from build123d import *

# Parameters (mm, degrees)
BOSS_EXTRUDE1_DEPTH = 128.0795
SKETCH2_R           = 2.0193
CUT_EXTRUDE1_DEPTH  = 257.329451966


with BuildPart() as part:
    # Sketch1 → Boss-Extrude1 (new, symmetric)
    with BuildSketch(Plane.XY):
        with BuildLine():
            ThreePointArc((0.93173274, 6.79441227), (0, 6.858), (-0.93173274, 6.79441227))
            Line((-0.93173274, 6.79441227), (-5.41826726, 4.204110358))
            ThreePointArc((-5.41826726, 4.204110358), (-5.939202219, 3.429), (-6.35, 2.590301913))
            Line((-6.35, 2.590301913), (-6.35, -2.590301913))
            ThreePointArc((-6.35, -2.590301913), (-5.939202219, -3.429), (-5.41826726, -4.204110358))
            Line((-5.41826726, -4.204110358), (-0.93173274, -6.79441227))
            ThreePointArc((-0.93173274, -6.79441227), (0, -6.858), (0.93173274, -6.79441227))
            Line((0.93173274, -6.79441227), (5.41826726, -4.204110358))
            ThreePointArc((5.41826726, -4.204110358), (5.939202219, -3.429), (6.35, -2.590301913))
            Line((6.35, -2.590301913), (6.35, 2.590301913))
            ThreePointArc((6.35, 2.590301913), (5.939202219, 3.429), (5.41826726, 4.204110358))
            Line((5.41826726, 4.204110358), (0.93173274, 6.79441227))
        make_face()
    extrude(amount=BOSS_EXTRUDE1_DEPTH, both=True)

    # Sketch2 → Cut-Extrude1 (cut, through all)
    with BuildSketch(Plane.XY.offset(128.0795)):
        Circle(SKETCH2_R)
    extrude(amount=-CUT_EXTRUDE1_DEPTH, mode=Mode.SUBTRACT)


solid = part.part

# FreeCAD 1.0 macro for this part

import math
import FreeCAD as App
import Part
import Sketcher
from FreeCAD import Vector
Q = App.Units.Quantity

doc = App.newDocument("Part")
body = doc.addObject("PartDesign::Body", "Body")

# Sketch on XY plane
sketch1 = doc.addObject("Sketcher::SketchObject", "Sketch")
body.addObject(sketch1)
sketch1.AttachmentSupport = (doc.XY_Plane, [""])
sketch1.MapMode = "FlatFace"
sketch1.addGeometry([
    Part.ArcOfCircle(Part.Circle(Vector(0, 0, 0), Vector(0, 0, 1), 6.9), math.radians(82.19), math.radians(97.81)),  # 0
    Part.LineSegment(Vector(-0.9, 6.8, 0), Vector(-5.4, 4.2, 0)),  # 1
    Part.ArcOfCircle(Part.Circle(Vector(0, 0, 0), Vector(0, 0, 1), 6.9), math.radians(142.19), math.radians(157.81)),  # 2
    Part.LineSegment(Vector(-6.3, 2.6, 0), Vector(-6.3, -2.6, 0)),  # 3
    Part.ArcOfCircle(Part.Circle(Vector(0, 0, 0), Vector(0, 0, 1), 6.9), math.radians(-157.81), math.radians(-142.19)),  # 4
    Part.LineSegment(Vector(-5.4, -4.2, 0), Vector(-0.9, -6.8, 0)),  # 5
    Part.ArcOfCircle(Part.Circle(Vector(0, 0, 0), Vector(0, 0, 1), 6.9), math.radians(-97.81), math.radians(-82.19)),  # 6
    Part.LineSegment(Vector(0.9, -6.8, 0), Vector(5.4, -4.2, 0)),  # 7
    Part.ArcOfCircle(Part.Circle(Vector(0, 0, 0), Vector(0, 0, 1), 6.9), math.radians(-37.81), math.radians(-22.19)),  # 8
    Part.LineSegment(Vector(6.3, -2.6, 0), Vector(6.3, 2.6, 0)),  # 9
    Part.ArcOfCircle(Part.Circle(Vector(0, 0, 0), Vector(0, 0, 1), 6.9), math.radians(22.19), math.radians(37.81)),  # 10
    Part.LineSegment(Vector(5.4, 4.2, 0), Vector(0.9, 6.8, 0)),  # 11
], False)
sketch1.addConstraint([
    Sketcher.Constraint("Coincident", 0, 2, 1, 1),
    Sketcher.Constraint("Coincident", 1, 2, 2, 1),
    Sketcher.Constraint("Coincident", 2, 2, 3, 1),
    Sketcher.Constraint("Coincident", 3, 2, 4, 1),
    Sketcher.Constraint("Coincident", 4, 2, 5, 1),
    Sketcher.Constraint("Coincident", 5, 2, 6, 1),
    Sketcher.Constraint("Coincident", 6, 2, 7, 1),
    Sketcher.Constraint("Coincident", 7, 2, 8, 1),
    Sketcher.Constraint("Coincident", 8, 2, 9, 1),
    Sketcher.Constraint("Coincident", 9, 2, 10, 1),
    Sketcher.Constraint("Coincident", 10, 2, 11, 1),
    Sketcher.Constraint("Coincident", 11, 2, 0, 1),
    Sketcher.Constraint("Vertical", 3),
    Sketcher.Constraint("Vertical", 9),
    Sketcher.Constraint("Coincident", 0, 3, -1, 1),
    Sketcher.Constraint("Coincident", 2, 3, -1, 1),
    Sketcher.Constraint("Coincident", 4, 3, -1, 1),
    Sketcher.Constraint("Coincident", 6, 3, -1, 1),
    Sketcher.Constraint("Coincident", 8, 3, -1, 1),
    Sketcher.Constraint("Coincident", 10, 3, -1, 1),
    Sketcher.Constraint("Equal", 0, 2),
    Sketcher.Constraint("Equal", 2, 4),
    Sketcher.Constraint("Equal", 4, 6),
    Sketcher.Constraint("Equal", 6, 8),
    Sketcher.Constraint("Equal", 8, 10),
    Sketcher.Constraint("Parallel", 1, 7),
    Sketcher.Constraint("Parallel", 5, 11),
    Sketcher.Constraint("Horizontal", 5, 2, 6, 2),
    Sketcher.Constraint("Horizontal", 4, 2, 7, 2),
    Sketcher.Constraint("Horizontal", 3, 2, 8, 2),
    Sketcher.Constraint("Horizontal", 1, 2, 10, 2),
    Sketcher.Constraint("Vertical", 1, 2, 4, 2),
    Sketcher.Constraint("Radius", 0, Q("0.27 in")),
    Sketcher.Constraint("Angle", 1, Q("-150 deg")),
    Sketcher.Constraint("DistanceX", 2, 2, -1, 1, Q("0.25 in")),
    Sketcher.Constraint("DistanceX", 4, 2, 6, 2, Q("0.25 in")),
])
pad1 = doc.addObject("PartDesign::Pad", "Pad")
body.addObject(pad1)
pad1.Profile = sketch1
pad1.Length = Q("10.085 in")
pad1.Midplane = True

# Sketch on XY plane
sketch2 = doc.addObject("Sketcher::SketchObject", "Sketch001")
body.addObject(sketch2)
sketch2.AttachmentSupport = (doc.XY_Plane, [""])
sketch2.MapMode = "FlatFace"
sketch2.AttachmentOffset = App.Placement(Vector(0, 0, 5.0425 * 25.4), App.Rotation())
sketch2.addGeometry(Part.Circle(Vector(0, 0, 0), Vector(0, 0, 1), 2), False)
sketch2.addConstraint([
    Sketcher.Constraint("Coincident", 0, 3, -1, 1),
    Sketcher.Constraint("Diameter", 0, Q("0.159 in")),
])
pocket1 = doc.addObject("PartDesign::Pocket", "Pocket")
body.addObject(pocket1)
pocket1.Profile = sketch2
pocket1.Type = "ThroughAll"

doc.recompute()
